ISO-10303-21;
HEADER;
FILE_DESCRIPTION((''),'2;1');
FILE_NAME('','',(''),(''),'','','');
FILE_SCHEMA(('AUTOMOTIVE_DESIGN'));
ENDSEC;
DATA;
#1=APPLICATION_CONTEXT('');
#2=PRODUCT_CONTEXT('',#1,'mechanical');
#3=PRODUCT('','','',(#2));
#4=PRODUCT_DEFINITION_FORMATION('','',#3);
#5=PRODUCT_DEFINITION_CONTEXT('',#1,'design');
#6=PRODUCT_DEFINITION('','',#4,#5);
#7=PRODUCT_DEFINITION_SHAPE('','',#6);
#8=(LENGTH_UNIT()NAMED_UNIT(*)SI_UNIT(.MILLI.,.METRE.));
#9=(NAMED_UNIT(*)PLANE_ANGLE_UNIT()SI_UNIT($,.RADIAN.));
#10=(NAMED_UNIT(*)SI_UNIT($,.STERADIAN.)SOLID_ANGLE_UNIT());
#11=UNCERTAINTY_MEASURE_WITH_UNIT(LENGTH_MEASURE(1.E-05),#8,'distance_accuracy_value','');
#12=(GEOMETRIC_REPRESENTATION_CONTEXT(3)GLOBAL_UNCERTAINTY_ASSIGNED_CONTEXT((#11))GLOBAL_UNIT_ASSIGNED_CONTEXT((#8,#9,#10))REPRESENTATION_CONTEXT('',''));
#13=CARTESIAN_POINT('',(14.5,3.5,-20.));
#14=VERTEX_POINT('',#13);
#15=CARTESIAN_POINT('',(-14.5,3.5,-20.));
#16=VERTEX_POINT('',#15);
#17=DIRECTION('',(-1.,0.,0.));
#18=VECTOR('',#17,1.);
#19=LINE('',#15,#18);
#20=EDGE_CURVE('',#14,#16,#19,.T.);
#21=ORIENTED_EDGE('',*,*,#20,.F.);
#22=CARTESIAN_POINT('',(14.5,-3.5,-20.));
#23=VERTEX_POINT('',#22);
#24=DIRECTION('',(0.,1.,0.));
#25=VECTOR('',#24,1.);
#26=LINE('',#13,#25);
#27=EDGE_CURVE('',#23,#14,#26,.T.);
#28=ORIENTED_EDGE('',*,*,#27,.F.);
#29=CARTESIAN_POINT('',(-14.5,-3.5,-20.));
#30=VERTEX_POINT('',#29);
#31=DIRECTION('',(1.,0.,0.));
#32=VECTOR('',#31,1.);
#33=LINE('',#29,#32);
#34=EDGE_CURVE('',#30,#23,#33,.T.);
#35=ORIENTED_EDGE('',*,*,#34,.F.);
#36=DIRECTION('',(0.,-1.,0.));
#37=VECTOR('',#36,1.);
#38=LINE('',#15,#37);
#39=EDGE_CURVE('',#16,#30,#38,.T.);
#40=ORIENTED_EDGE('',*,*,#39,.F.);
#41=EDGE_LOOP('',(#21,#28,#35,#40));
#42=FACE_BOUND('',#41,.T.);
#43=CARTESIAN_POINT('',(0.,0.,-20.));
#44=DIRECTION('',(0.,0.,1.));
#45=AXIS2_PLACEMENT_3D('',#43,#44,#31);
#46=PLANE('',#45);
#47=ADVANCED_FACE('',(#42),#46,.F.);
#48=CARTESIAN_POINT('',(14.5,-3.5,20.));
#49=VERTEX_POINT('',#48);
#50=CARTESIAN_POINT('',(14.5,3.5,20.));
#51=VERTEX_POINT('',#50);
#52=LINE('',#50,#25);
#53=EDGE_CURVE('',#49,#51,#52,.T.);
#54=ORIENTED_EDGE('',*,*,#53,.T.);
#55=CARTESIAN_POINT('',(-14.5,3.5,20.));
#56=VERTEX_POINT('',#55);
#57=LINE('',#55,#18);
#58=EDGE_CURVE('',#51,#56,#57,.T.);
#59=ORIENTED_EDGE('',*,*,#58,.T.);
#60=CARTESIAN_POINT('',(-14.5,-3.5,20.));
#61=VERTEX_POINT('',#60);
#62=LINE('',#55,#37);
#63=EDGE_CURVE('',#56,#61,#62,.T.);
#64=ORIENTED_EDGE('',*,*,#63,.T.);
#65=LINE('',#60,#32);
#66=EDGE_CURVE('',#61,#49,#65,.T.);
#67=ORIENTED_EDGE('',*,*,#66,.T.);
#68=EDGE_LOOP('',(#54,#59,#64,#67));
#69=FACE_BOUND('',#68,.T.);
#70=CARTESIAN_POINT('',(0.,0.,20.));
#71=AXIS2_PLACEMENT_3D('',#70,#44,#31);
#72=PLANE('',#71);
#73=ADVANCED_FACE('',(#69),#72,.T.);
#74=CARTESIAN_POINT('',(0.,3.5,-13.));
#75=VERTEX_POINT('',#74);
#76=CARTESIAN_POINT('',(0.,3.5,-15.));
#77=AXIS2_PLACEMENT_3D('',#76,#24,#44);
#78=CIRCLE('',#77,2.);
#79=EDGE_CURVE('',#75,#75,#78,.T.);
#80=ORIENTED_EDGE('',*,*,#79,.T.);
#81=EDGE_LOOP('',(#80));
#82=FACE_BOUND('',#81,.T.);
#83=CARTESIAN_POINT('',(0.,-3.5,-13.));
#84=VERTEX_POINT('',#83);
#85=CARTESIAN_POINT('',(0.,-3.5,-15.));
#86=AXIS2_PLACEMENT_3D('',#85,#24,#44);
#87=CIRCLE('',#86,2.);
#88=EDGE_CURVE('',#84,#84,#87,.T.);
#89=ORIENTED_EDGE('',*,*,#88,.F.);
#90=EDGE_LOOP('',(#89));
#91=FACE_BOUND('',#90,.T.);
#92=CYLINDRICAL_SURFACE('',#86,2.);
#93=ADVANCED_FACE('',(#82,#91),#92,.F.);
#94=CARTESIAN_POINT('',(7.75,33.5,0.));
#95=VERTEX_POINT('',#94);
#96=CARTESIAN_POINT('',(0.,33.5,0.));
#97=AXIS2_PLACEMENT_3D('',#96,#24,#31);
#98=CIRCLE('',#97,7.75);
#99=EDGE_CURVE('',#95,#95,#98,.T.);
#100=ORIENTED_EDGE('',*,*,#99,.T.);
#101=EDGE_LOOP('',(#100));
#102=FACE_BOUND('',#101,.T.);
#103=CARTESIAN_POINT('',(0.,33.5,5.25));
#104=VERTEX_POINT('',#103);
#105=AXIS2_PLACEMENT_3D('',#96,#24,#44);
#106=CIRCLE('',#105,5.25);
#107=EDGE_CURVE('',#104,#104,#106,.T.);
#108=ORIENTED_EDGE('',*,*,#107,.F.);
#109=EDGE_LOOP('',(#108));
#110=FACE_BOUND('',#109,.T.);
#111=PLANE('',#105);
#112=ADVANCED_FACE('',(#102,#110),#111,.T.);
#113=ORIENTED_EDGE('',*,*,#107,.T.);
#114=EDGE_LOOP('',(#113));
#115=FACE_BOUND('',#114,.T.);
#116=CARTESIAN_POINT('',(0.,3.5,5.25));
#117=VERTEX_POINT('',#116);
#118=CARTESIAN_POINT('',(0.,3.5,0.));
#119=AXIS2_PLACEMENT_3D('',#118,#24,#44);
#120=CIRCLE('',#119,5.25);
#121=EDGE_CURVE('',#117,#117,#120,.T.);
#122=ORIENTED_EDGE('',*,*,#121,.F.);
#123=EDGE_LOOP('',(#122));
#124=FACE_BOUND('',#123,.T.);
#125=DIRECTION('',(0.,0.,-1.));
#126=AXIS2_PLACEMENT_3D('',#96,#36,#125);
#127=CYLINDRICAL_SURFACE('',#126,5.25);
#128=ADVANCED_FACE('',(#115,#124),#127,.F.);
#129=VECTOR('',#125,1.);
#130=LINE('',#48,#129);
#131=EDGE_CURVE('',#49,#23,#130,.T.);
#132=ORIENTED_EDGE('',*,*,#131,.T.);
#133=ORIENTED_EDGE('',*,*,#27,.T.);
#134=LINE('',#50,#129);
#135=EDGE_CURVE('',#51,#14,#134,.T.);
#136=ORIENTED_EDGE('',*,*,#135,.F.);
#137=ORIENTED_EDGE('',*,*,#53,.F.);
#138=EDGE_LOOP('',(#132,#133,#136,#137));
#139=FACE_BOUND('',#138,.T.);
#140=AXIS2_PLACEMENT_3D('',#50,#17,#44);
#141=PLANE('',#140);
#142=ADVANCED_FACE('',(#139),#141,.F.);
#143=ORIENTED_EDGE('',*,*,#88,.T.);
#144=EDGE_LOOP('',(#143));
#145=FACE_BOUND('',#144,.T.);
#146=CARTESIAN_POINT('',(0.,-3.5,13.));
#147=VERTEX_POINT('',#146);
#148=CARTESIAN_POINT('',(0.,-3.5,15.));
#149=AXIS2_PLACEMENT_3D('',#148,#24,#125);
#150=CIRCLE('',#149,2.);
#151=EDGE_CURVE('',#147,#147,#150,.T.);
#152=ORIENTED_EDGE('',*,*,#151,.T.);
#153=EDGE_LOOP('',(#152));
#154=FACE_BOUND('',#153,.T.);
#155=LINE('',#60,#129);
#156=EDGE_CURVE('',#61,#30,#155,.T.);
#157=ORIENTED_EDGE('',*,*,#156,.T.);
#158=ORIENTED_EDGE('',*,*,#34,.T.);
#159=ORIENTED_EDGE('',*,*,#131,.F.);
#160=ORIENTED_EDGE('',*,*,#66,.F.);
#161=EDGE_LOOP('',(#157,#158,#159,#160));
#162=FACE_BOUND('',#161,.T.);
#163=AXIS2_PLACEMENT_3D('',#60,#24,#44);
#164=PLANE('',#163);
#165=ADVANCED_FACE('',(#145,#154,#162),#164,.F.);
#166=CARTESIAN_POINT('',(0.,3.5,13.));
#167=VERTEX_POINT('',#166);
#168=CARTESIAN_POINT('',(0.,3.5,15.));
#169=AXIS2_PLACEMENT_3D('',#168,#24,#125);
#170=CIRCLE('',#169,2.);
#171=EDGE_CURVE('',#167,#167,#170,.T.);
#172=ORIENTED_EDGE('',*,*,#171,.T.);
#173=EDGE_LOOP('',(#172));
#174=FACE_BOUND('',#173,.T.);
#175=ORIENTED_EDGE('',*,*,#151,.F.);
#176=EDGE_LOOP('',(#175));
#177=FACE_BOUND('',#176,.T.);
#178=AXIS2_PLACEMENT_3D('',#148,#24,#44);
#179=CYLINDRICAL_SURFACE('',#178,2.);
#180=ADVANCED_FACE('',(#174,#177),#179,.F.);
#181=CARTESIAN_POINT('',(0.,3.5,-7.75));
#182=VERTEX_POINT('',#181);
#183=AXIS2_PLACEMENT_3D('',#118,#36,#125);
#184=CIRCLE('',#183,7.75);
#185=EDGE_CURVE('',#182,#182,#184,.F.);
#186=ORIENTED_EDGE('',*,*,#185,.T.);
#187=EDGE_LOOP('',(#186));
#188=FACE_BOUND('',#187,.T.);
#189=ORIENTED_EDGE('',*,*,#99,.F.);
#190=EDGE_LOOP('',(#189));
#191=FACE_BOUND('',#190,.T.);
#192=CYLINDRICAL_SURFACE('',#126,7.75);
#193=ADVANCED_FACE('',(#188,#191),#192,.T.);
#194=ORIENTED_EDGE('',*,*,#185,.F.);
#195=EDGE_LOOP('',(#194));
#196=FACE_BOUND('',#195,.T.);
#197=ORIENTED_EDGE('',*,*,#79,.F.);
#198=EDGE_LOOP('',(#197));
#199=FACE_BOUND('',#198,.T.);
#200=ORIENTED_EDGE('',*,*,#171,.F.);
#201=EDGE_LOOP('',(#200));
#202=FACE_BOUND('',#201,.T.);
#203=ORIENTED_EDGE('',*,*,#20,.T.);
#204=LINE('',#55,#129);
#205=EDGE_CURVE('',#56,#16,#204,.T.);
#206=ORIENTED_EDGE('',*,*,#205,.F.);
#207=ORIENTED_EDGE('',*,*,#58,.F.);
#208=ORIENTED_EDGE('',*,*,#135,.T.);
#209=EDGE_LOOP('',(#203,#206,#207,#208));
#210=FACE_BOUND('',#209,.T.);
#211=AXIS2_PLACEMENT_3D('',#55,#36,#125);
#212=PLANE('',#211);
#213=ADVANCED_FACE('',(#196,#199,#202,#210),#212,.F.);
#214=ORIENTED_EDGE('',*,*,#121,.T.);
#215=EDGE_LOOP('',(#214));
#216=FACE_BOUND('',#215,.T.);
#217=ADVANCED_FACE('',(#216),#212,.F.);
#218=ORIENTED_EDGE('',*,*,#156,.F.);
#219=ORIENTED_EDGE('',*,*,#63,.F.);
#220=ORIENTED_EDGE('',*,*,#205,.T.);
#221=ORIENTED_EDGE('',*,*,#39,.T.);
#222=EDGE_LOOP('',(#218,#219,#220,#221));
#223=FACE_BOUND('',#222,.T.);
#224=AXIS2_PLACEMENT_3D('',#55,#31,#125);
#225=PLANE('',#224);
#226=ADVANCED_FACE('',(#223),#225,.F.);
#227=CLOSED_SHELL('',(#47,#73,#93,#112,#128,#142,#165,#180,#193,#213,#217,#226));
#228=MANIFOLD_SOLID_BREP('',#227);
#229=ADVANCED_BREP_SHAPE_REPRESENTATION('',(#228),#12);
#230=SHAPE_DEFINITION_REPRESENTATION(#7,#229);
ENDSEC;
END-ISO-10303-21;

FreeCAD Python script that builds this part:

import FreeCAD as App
import Part
import Sketcher

V = App.Vector
Q = App.Units.Quantity


def add_polygon(sketch, points):
    """Adds a closed chain of lines whose ends are joined by coincident constraints."""
    first, n = sketch.GeometryCount, len(points)
    for a, b in zip(points, points[1:] + points[:1]):
        sketch.addGeometry(Part.LineSegment(App.Vector(*a, 0), App.Vector(*b, 0)), False)
    for i in range(n):
        sketch.addConstraint(Sketcher.Constraint("Coincident", first + i, 2, first + (i + 1) % n, 1))

doc = App.newDocument("Part")
body = doc.addObject("PartDesign::Body", "Body")

sketch1 = body.newObject("Sketcher::SketchObject", "Sketch")
sketch1.AttachmentSupport = (doc.getObject("XY_Plane"), [""])
sketch1.MapMode = "FlatFace"
add_polygon(sketch1, [(-14, 4), (-14, -4), (14, -4), (14, 4)])
sketch1.addConstraint([
    Sketcher.Constraint("Vertical", 0),
    Sketcher.Constraint("Horizontal", 1),
    Sketcher.Constraint("Vertical", 2),
    Sketcher.Constraint("Horizontal", 3),
    Sketcher.Constraint("Symmetric", 0, 2, 2, 2, -1, 1),
    Sketcher.Constraint("DistanceX", 1, 1, 1, 2, Q("29 mm")),
    Sketcher.Constraint("DistanceY", 0, 2, 0, 1, Q("7 mm")),
])
pad1 = body.newObject("PartDesign::Pad", "Pad")
pad1.Profile = sketch1
pad1.Length = 40
pad1.Midplane = True

sketch2 = body.newObject("Sketcher::SketchObject", "Sketch001")
sketch2.AttachmentSupport = (doc.getObject("XZ_Plane"), [""])
sketch2.MapMode = "FlatFace"
sketch2.AttachmentOffset = App.Placement(V(0, 0, -3.5), App.Rotation())
sketch2.addGeometry([
    Part.Circle(V(0, -15, 0), V(0, 0, 1), 2),
    Part.Circle(V(0, 15, 0), V(0, 0, 1), 2),
], False)
sketch2.addConstraint([
    Sketcher.Constraint("Equal", 0, 1),
    Sketcher.Constraint("Symmetric", 0, 3, 1, 3, -1, 1),
    Sketcher.Constraint("PointOnObject", 0, 3, -2),
    Sketcher.Constraint("Diameter", 0, Q("4 mm")),
    Sketcher.Constraint("DistanceY", 0, 3, -1, 1, Q("15 mm")),
])
pocket1 = body.newObject("PartDesign::Pocket", "Pocket")
pocket1.Profile = sketch2
pocket1.Type = "ThroughAll"
pocket1.Reversed = True

sketch3 = body.newObject("Sketcher::SketchObject", "Sketch002")
sketch3.AttachmentSupport = (doc.getObject("XZ_Plane"), [""])
sketch3.MapMode = "FlatFace"
sketch3.AttachmentOffset = App.Placement(V(0, 0, -3.5), App.Rotation())
sketch3.addGeometry([
    Part.Circle(V(0, 0, 0), V(0, 0, 1), 8),
    Part.Circle(V(0, 0, 0), V(0, 0, 1), 5),
], False)
sketch3.addConstraint([
    Sketcher.Constraint("Coincident", 0, 3, -1, 1),
    Sketcher.Constraint("Coincident", 1, 3, -1, 1),
    Sketcher.Constraint("Diameter", 0, Q("15.5 mm")),
    Sketcher.Constraint("Diameter", 1, Q("10.5 mm")),
])
pad2 = body.newObject("PartDesign::Pad", "Pad001")
pad2.Profile = sketch3
pad2.Length = 30
pad2.Reversed = True

doc.recompute()
